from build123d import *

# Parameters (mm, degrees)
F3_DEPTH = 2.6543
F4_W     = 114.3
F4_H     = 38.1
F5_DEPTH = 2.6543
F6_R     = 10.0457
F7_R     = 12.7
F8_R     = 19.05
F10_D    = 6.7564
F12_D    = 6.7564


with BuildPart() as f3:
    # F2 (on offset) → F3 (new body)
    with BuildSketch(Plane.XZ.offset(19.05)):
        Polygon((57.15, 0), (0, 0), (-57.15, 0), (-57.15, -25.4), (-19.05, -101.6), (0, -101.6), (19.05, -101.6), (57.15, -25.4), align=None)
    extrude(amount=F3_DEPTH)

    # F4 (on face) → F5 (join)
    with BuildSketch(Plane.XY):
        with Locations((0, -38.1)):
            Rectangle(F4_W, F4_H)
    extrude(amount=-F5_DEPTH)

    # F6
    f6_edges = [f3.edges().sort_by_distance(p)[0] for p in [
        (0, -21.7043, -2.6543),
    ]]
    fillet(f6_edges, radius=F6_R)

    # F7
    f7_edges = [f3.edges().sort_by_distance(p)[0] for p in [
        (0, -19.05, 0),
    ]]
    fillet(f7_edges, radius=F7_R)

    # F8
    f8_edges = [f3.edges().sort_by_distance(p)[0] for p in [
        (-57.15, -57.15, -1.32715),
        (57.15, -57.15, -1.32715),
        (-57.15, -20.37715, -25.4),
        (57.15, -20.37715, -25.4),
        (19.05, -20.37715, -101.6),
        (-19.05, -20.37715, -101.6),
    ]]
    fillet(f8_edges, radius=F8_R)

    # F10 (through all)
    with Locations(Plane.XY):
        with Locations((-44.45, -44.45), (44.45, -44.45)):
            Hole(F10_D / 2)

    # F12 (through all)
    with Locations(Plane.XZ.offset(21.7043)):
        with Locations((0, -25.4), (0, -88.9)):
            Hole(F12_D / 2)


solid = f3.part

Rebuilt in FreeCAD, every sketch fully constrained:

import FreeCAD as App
import Part
import Sketcher

V = App.Vector
Q = App.Units.Quantity


def edges_at(feature, points):
    """Names of the edges that pass closest to the given points."""
    edges = feature.Shape.Edges
    near = lambda p: min(range(len(edges)), key=lambda i: edges[i].distToShape(Part.Vertex(*p))[0])
    return sorted({f"Edge{near(p) + 1}" for p in points})

doc = App.newDocument("Part")
body = doc.addObject("PartDesign::Body", "Body")

sketch1 = body.newObject("Sketcher::SketchObject", "Sketch")
sketch1.AttachmentSupport = (doc.getObject("XZ_Plane"), [""])
sketch1.MapMode = "FlatFace"
sketch1.AttachmentOffset = App.Placement(V(0, 0, 0.75 * 25.4), App.Rotation())
sketch1.addGeometry(Part.LineSegment(V(57.15, 0, 0), V(-57.15, 0, 0)), False)
sketch1.addGeometry(Part.LineSegment(V(-57.15, 0, 0), V(-57.15, -25.4, 0)), False)
sketch1.addGeometry(Part.LineSegment(V(-57.15, -25.4, 0), V(-19.05, -101.6, 0)), False)
sketch1.addGeometry(Part.LineSegment(V(-19.05, -101.6, 0), V(19.05, -101.6, 0)), False)
sketch1.addGeometry(Part.LineSegment(V(19.05, -101.6, 0), V(57.15, -25.4, 0)), False)
sketch1.addGeometry(Part.LineSegment(V(57.15, -25.4, 0), V(57.15, 0, 0)), False)
sketch1.addConstraint(Sketcher.Constraint("Coincident", 0, 2, 1, 1))
sketch1.addConstraint(Sketcher.Constraint("Coincident", 1, 2, 2, 1))
sketch1.addConstraint(Sketcher.Constraint("Coincident", 2, 2, 3, 1))
sketch1.addConstraint(Sketcher.Constraint("Coincident", 3, 2, 4, 1))
sketch1.addConstraint(Sketcher.Constraint("Coincident", 4, 2, 5, 1))
sketch1.addConstraint(Sketcher.Constraint("Coincident", 5, 2, 0, 1))
sketch1.addConstraint(Sketcher.Constraint("Horizontal", 0))
sketch1.addConstraint(Sketcher.Constraint("Vertical", 1))
sketch1.addConstraint(Sketcher.Constraint("Horizontal", 3))
sketch1.addConstraint(Sketcher.Constraint("Vertical", 5))
sketch1.addConstraint(Sketcher.Constraint("Symmetric", 0, 2, 5, 2, -1, 1))
sketch1.addConstraint(Sketcher.Constraint("Horizontal", 1, 2, 4, 2))
sketch1.addConstraint(Sketcher.Constraint("Equal", 2, 4))
sketch1.addConstraint(Sketcher.Constraint("DistanceY", 1, 2, 1, 1, Q("1 in")))
sketch1.addConstraint(Sketcher.Constraint("DistanceX", 0, 2, 0, 1, Q("4.5 in")))
sketch1.addConstraint(Sketcher.Constraint("DistanceX", 3, 1, 3, 2, Q("1.5 in")))
sketch1.addConstraint(Sketcher.Constraint("DistanceY", 2, 2, -1, 1, Q("4 in")))
pad1 = body.newObject("PartDesign::Pad", "Pad")
pad1.Profile = sketch1
pad1.Length = Q("0.1045 in")

sketch2 = body.newObject("Sketcher::SketchObject", "Sketch001")
sketch2.AttachmentSupport = (doc.getObject("XY_Plane"), [""])
sketch2.MapMode = "FlatFace"
sketch2.addGeometry(Part.LineSegment(V(-57.15, -19.05, 0), V(-57.15, -57.15, 0)), False)
sketch2.addGeometry(Part.LineSegment(V(-57.15, -57.15, 0), V(57.15, -57.15, 0)), False)
sketch2.addGeometry(Part.LineSegment(V(57.15, -57.15, 0), V(57.15, -19.05, 0)), False)
sketch2.addGeometry(Part.LineSegment(V(57.15, -19.05, 0), V(-57.15, -19.05, 0)), False)
sketch2.addConstraint(Sketcher.Constraint("Coincident", 0, 2, 1, 1))
sketch2.addConstraint(Sketcher.Constraint("Coincident", 1, 2, 2, 1))
sketch2.addConstraint(Sketcher.Constraint("Coincident", 2, 2, 3, 1))
sketch2.addConstraint(Sketcher.Constraint("Coincident", 3, 2, 0, 1))
sketch2.addConstraint(Sketcher.Constraint("Vertical", 0))
sketch2.addConstraint(Sketcher.Constraint("Horizontal", 1))
sketch2.addConstraint(Sketcher.Constraint("Vertical", 2))
sketch2.addConstraint(Sketcher.Constraint("Horizontal", 3))
sketch2.addConstraint(Sketcher.Constraint("DistanceX", 1, 1, 1, 2, Q("4.5 in")))
sketch2.addConstraint(Sketcher.Constraint("DistanceY", 0, 2, 0, 1, Q("1.5 in")))
sketch2.addConstraint(Sketcher.Constraint("DistanceX", 0, 2, -1, 1, Q("2.25 in")))
sketch2.addConstraint(Sketcher.Constraint("DistanceY", 0, 2, -1, 1, Q("2.25 in")))
pad2 = body.newObject("PartDesign::Pad", "Pad001")
pad2.Profile = sketch2
pad2.Length = Q("0.1045 in")
pad2.Reversed = True
doc.recompute()

fillet = body.newObject("PartDesign::Fillet", "Fillet")
fillet.Base = (pad2, edges_at(pad2, [(0, -21.704, -2.654)]))
fillet.Radius = Q("0.3955 in")
doc.recompute()

fillet2 = body.newObject("PartDesign::Fillet", "Fillet001")
fillet2.Base = (fillet, edges_at(fillet, [(0, -19.05, 0)]))
fillet2.Radius = Q("0.5 in")
doc.recompute()

fillet3 = body.newObject("PartDesign::Fillet", "Fillet002")
fillet3.Base = (fillet2, edges_at(fillet2, [
    (-57.15, -57.15, -1.327),
    (57.15, -57.15, -1.327),
    (-57.15, -20.377, -25.4),
    (57.15, -20.377, -25.4),
    (19.05, -20.377, -101.6),
    (-19.05, -20.377, -101.6),
]))
fillet3.Radius = Q("0.75 in")

sketch3 = body.newObject("Sketcher::SketchObject", "Sketch002")
sketch3.AttachmentSupport = (doc.getObject("XY_Plane"), [""])
sketch3.MapMode = "FlatFace"
sketch3.addGeometry(Part.Circle(V(-44.45, -44.45, 0), V(0, 0, 1), 3.3782), False)
sketch3.addGeometry(Part.Circle(V(44.45, -44.45, 0), V(0, 0, 1), 3.3782), False)
sketch3.addConstraint(Sketcher.Constraint("Equal", 0, 1))
sketch3.addConstraint(Sketcher.Constraint("Symmetric", 0, 3, 1, 3, -2))
sketch3.addConstraint(Sketcher.Constraint("Diameter", 0, Q("0.266 in")))
sketch3.addConstraint(Sketcher.Constraint("DistanceX", 0, 3, 1, 3, Q("3.5 in")))
sketch3.addConstraint(Sketcher.Constraint("DistanceY", 0, 3, -1, 1, Q("1.75 in")))
doc.recompute()
hole = body.newObject("PartDesign::Hole", "Hole")
hole.Profile = sketch3
hole.ThreadType = "None"
hole.Diameter = Q("0.266 in")
hole.DepthType = "ThroughAll"

sketch4 = body.newObject("Sketcher::SketchObject", "Sketch003")
sketch4.AttachmentSupport = (doc.getObject("XZ_Plane"), [""])
sketch4.MapMode = "FlatFace"
sketch4.AttachmentOffset = App.Placement(V(0, 0, 0.8545 * 25.4), App.Rotation())
sketch4.addGeometry(Part.Circle(V(0, -25.4, 0), V(0, 0, 1), 3.3782), False)
sketch4.addGeometry(Part.Circle(V(0, -88.9, 0), V(0, 0, 1), 3.3782), False)
sketch4.addConstraint(Sketcher.Constraint("Equal", 0, 1))
sketch4.addConstraint(Sketcher.Constraint("PointOnObject", 0, 3, -2))
sketch4.addConstraint(Sketcher.Constraint("PointOnObject", 1, 3, -2))
sketch4.addConstraint(Sketcher.Constraint("Diameter", 0, Q("0.266 in")))
sketch4.addConstraint(Sketcher.Constraint("DistanceY", 0, 3, -1, 1, Q("1 in")))
sketch4.addConstraint(Sketcher.Constraint("DistanceY", 1, 3, -1, 1, Q("3.5 in")))
doc.recompute()
hole2 = body.newObject("PartDesign::Hole", "Hole001")
hole2.Profile = sketch4
hole2.ThreadType = "None"
hole2.Diameter = Q("0.266 in")
hole2.DepthType = "ThroughAll"

doc.recompute()
